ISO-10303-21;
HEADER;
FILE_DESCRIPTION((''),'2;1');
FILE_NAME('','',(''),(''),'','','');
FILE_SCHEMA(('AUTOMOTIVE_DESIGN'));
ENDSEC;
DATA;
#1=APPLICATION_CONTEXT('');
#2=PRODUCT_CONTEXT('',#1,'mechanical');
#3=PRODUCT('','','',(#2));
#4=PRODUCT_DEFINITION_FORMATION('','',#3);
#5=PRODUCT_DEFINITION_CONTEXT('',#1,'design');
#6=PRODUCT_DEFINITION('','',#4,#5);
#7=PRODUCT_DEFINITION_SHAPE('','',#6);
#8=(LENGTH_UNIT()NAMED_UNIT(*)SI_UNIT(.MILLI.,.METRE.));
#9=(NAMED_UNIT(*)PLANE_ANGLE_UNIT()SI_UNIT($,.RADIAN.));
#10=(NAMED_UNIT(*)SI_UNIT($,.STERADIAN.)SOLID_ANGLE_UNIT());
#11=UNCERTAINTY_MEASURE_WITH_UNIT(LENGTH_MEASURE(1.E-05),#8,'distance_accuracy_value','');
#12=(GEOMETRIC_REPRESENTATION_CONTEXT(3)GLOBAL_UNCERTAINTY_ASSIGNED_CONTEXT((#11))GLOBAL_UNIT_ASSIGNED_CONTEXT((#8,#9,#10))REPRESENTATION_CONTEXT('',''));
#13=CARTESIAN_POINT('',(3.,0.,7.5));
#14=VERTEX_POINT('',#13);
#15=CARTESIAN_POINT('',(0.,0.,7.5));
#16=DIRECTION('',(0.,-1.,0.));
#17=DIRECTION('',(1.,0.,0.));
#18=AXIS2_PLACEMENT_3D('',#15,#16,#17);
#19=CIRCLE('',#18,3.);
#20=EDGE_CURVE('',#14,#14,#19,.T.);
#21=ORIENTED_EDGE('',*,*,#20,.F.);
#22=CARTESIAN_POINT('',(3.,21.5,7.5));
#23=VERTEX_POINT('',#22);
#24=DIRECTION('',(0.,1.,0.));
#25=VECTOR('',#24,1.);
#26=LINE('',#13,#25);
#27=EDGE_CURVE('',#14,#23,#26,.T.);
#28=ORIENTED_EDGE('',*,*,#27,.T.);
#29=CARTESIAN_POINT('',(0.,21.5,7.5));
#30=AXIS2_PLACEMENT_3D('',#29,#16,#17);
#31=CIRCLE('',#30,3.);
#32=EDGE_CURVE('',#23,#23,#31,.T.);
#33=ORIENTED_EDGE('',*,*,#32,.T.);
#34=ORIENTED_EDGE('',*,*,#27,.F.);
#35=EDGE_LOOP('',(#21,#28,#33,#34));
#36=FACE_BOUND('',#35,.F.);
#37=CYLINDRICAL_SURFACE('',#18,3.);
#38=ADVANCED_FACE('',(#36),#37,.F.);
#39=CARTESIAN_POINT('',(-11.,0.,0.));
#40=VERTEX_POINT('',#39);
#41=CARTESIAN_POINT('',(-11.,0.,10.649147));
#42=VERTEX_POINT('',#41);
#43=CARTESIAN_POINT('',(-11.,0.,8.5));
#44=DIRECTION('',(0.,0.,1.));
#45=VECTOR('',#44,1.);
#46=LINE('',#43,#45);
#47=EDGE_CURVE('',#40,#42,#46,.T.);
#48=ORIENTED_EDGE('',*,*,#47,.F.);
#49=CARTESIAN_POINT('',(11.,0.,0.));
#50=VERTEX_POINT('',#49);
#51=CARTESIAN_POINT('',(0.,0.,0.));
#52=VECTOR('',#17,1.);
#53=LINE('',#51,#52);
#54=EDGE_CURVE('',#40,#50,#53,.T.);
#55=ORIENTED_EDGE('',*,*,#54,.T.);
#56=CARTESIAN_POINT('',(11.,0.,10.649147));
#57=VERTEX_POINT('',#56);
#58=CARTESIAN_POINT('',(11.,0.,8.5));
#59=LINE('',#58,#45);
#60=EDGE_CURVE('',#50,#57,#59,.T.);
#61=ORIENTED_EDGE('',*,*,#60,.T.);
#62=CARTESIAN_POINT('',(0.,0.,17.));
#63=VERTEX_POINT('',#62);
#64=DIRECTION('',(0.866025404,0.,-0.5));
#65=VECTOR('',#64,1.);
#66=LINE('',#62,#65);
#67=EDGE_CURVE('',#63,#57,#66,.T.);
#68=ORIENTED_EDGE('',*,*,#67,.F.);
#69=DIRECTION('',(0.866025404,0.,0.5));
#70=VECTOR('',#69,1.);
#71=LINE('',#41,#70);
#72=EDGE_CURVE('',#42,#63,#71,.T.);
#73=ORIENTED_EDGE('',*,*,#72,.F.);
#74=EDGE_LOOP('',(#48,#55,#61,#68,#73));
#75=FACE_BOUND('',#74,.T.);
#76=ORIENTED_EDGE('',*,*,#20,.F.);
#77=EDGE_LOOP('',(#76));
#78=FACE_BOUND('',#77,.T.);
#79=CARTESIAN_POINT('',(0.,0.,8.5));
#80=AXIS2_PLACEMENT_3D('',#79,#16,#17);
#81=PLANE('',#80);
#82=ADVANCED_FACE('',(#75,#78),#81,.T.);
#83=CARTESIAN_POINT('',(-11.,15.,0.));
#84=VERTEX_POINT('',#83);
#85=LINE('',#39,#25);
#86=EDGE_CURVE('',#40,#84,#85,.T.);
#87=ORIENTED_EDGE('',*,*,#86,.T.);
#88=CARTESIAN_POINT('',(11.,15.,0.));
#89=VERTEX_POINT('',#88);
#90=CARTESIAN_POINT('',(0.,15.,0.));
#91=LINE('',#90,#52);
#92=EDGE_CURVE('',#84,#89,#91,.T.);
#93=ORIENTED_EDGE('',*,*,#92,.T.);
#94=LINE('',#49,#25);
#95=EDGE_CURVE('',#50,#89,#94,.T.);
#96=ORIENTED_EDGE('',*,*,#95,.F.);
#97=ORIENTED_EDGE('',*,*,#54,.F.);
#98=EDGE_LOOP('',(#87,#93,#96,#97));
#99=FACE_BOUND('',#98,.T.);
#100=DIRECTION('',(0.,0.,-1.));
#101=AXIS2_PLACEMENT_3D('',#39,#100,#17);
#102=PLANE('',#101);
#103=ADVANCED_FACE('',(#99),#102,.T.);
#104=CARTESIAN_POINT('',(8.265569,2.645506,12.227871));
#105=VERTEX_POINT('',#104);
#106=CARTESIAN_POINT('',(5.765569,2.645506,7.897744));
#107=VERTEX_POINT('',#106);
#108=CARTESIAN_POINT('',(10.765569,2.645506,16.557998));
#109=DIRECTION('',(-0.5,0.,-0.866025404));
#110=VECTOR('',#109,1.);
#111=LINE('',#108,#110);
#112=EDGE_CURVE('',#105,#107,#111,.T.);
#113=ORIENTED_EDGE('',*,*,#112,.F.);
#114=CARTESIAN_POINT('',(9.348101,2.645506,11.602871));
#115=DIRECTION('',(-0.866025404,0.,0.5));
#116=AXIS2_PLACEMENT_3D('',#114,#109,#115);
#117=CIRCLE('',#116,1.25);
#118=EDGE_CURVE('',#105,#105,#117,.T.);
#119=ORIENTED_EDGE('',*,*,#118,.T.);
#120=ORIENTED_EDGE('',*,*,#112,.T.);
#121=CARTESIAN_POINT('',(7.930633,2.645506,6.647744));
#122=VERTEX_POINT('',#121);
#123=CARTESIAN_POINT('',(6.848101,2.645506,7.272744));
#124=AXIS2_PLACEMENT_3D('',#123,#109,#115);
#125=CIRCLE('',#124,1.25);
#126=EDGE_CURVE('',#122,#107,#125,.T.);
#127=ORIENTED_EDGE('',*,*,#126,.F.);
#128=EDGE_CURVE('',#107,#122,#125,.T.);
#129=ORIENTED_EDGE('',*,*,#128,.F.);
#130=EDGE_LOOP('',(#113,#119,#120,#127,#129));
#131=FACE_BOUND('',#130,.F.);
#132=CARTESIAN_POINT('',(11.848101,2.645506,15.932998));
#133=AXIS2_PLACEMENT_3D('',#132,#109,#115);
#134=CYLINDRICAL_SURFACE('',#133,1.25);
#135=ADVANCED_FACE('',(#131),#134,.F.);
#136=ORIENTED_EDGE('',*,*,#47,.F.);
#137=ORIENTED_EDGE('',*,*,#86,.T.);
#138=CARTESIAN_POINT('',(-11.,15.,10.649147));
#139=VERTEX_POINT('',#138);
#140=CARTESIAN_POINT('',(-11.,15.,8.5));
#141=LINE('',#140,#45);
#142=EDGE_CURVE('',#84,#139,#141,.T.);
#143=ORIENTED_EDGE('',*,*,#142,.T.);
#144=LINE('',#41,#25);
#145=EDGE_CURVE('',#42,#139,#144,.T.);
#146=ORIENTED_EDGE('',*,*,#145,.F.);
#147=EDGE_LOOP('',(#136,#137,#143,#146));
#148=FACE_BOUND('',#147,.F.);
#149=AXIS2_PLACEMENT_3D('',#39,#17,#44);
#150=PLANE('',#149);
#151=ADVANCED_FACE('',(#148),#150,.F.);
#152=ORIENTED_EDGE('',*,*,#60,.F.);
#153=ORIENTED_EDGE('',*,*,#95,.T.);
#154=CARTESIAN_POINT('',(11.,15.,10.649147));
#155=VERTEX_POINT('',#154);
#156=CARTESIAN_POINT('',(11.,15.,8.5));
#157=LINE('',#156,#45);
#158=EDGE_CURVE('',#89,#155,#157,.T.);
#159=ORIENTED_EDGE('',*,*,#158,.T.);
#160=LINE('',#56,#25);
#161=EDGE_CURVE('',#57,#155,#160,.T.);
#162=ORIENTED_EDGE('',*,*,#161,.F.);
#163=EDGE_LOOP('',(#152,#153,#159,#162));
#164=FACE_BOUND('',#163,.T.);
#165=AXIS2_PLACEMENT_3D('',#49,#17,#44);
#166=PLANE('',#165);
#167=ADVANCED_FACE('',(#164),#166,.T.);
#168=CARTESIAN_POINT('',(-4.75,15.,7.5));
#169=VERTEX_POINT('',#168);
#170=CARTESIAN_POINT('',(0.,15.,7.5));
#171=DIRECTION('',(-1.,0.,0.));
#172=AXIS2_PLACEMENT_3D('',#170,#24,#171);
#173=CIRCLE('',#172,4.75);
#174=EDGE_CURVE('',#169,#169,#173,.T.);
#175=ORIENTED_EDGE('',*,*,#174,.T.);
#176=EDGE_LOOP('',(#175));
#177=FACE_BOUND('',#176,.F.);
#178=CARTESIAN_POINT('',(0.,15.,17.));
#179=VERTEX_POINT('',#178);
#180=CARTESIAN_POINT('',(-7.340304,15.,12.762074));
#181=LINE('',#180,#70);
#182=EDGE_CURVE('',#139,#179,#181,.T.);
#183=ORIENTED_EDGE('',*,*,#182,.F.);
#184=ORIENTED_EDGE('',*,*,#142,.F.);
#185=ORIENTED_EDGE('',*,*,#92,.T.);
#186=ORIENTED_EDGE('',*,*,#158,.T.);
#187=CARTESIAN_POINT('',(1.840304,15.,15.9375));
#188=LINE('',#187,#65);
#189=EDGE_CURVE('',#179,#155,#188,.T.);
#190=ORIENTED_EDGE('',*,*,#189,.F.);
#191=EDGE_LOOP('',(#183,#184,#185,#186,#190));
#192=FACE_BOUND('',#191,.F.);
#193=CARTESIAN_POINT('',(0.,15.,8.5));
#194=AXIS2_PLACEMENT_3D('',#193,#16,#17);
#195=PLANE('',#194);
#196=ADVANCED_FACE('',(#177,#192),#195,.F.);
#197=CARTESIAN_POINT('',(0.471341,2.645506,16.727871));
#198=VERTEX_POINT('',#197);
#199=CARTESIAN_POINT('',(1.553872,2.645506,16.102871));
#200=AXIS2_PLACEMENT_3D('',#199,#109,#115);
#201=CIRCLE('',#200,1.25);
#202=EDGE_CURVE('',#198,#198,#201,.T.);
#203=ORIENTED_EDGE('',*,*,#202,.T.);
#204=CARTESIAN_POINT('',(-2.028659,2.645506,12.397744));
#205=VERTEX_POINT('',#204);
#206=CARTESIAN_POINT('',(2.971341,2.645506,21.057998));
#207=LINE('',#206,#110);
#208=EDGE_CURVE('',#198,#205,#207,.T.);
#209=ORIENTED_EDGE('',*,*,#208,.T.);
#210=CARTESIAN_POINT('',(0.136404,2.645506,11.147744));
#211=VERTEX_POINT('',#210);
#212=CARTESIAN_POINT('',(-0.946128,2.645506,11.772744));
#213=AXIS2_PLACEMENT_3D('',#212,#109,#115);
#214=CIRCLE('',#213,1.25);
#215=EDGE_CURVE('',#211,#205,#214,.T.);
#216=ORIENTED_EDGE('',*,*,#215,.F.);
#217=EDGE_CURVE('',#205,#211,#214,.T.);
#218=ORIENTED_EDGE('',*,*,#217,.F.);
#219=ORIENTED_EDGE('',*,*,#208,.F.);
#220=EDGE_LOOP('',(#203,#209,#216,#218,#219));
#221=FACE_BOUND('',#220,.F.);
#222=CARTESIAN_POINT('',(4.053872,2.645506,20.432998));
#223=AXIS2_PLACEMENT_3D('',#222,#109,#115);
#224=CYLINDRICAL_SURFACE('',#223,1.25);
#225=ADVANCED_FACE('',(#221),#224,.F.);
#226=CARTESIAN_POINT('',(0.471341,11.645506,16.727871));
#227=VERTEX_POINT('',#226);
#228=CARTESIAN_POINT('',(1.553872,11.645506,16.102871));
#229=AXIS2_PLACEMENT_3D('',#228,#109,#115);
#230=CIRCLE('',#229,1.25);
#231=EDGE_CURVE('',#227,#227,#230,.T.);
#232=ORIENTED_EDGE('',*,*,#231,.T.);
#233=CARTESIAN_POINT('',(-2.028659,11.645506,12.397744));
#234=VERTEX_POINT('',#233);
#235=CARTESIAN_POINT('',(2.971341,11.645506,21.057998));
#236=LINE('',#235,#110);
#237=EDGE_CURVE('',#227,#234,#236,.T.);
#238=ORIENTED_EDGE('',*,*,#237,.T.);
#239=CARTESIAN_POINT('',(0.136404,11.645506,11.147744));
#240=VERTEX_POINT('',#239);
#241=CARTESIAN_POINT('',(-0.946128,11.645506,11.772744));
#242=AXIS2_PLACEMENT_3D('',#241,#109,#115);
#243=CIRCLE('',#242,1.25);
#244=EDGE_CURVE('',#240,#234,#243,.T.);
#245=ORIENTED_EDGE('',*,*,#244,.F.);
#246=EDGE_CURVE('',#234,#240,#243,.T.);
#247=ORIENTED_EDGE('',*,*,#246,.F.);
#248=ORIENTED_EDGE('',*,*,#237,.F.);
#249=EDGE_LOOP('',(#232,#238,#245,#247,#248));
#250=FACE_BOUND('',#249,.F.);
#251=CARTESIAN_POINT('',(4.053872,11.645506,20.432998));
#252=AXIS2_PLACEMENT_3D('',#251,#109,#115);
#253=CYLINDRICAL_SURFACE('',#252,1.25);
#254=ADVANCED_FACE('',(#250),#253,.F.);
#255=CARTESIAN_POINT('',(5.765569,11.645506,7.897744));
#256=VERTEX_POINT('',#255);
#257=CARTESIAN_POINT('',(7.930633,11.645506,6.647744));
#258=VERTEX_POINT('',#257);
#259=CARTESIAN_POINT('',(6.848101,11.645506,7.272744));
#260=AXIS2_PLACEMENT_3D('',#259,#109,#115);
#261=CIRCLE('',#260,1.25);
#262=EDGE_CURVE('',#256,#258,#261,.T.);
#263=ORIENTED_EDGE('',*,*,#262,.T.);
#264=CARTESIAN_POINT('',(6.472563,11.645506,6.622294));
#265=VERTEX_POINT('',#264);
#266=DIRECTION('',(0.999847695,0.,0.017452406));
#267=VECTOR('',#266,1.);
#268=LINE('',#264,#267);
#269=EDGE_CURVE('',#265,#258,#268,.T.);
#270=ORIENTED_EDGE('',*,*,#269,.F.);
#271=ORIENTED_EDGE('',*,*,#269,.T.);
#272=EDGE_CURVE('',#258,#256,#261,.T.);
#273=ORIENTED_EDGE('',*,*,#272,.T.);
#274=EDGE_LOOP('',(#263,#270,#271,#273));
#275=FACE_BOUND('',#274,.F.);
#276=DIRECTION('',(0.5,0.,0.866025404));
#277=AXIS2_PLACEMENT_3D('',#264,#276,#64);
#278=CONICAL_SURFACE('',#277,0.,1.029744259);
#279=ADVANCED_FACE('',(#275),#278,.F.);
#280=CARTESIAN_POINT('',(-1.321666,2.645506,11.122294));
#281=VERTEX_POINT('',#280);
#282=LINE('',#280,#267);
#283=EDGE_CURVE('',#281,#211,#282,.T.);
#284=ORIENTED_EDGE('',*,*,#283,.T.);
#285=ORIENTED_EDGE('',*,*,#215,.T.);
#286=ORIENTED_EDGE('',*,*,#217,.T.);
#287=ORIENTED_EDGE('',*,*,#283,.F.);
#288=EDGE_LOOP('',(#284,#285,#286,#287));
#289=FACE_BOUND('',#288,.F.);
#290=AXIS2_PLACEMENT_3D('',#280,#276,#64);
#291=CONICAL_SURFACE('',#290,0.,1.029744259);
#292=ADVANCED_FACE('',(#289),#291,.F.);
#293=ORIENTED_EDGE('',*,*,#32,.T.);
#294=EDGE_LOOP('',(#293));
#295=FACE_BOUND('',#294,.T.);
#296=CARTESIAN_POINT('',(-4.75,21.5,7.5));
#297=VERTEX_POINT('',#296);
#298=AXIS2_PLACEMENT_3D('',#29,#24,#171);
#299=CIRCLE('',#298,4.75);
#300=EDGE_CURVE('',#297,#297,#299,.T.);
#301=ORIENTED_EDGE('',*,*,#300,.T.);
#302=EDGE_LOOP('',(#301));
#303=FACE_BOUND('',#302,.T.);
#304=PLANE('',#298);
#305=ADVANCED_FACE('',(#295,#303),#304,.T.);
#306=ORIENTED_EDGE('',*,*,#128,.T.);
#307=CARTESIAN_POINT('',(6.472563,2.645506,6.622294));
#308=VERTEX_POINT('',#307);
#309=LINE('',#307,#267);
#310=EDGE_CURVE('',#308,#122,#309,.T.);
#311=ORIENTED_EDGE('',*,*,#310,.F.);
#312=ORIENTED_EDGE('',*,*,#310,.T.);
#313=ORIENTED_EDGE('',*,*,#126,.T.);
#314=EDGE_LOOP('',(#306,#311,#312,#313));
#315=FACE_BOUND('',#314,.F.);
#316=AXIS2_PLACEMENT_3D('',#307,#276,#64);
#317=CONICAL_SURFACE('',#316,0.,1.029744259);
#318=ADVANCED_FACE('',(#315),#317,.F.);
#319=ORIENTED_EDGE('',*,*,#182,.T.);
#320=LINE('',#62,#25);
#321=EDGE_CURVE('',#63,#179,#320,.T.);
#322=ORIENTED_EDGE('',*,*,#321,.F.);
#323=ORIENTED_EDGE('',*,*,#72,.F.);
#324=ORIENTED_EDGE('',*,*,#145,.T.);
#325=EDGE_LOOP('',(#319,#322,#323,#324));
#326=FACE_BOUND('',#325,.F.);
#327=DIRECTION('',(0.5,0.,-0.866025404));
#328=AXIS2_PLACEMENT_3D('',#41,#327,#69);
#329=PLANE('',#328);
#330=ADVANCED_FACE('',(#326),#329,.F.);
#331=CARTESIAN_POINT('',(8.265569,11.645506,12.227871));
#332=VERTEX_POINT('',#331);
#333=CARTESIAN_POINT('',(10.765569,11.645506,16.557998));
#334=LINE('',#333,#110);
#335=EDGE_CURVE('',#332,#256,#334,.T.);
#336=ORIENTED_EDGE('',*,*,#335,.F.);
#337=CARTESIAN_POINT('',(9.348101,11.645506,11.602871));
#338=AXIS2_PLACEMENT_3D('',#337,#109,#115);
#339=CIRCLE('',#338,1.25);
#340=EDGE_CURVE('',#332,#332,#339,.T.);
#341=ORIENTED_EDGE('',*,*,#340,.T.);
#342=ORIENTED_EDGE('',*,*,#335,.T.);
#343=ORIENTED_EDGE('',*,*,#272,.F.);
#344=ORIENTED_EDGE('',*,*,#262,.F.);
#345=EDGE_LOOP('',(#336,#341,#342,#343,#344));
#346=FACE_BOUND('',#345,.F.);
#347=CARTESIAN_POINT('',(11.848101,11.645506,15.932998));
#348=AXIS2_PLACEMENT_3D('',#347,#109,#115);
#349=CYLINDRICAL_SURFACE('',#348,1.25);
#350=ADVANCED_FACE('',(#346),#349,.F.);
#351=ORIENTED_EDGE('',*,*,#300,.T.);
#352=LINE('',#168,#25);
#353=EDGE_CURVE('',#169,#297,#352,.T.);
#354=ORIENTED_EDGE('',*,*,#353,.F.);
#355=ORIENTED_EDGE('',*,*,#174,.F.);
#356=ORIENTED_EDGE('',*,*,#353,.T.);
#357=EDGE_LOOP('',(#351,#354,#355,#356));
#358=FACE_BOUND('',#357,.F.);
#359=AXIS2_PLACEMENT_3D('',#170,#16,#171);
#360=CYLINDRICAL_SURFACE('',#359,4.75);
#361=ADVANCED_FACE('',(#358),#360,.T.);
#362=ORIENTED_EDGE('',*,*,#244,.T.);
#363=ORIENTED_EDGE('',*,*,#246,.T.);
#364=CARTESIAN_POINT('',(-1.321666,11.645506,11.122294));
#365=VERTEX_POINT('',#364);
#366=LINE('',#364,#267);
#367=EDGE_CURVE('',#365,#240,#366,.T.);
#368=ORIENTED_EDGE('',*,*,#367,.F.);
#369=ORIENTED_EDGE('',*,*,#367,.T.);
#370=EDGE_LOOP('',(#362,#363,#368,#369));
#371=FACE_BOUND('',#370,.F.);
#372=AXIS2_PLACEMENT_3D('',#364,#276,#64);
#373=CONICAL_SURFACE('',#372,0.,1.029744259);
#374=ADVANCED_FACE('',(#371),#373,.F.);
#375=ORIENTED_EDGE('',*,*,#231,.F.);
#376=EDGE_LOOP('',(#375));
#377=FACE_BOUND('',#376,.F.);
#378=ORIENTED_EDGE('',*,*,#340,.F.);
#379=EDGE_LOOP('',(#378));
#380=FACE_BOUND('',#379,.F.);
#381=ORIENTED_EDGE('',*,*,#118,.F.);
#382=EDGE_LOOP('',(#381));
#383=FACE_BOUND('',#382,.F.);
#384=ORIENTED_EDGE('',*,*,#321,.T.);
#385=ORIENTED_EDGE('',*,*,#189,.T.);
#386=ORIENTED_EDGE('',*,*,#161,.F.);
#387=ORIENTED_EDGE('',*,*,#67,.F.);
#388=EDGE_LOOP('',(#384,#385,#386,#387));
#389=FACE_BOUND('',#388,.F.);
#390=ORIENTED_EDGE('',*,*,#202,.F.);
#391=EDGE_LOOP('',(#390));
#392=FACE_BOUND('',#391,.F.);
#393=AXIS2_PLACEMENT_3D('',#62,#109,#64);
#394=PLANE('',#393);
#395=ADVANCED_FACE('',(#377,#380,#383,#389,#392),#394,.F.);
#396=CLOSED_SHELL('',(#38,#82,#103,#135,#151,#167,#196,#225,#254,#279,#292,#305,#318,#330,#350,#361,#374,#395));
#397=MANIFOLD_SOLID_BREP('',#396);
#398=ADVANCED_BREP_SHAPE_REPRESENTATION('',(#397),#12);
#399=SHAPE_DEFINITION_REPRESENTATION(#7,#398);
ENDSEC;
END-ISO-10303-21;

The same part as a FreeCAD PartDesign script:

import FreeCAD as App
import Part
import Sketcher
from FreeCAD import Vector
Q = App.Units.Quantity

doc = App.newDocument("Part")
body = doc.addObject("PartDesign::Body", "Body")

# Sketch on XZ plane
sketch1 = body.newObject("Sketcher::SketchObject", "Sketch")
sketch1.AttachmentSupport = (doc.getObject("XZ_Plane"), [""])
sketch1.MapMode = "FlatFace"
sketch1.addGeometry([
    Part.LineSegment(Vector(-11, 17, 0), Vector(-11, 0, 0)),
    Part.LineSegment(Vector(-11, 0, 0), Vector(11, 0, 0)),
    Part.LineSegment(Vector(11, 0, 0), Vector(11, 17, 0)),
    Part.LineSegment(Vector(11, 17, 0), Vector(-11, 17, 0)),
], False)
sketch1.addConstraint([
    Sketcher.Constraint("Coincident", 0, 2, 1, 1),
    Sketcher.Constraint("Coincident", 1, 2, 2, 1),
    Sketcher.Constraint("Coincident", 2, 2, 3, 1),
    Sketcher.Constraint("Coincident", 3, 2, 0, 1),
    Sketcher.Constraint("Vertical", 0),
    Sketcher.Constraint("Horizontal", 1),
    Sketcher.Constraint("Vertical", 2),
    Sketcher.Constraint("Horizontal", 3),
    Sketcher.Constraint("Symmetric", 0, 2, 1, 2, -1, 1),
    Sketcher.Constraint("DistanceX", 1, 1, 1, 2, Q("22 mm")),
    Sketcher.Constraint("DistanceY", 0, 2, 0, 1, Q("17 mm")),
])
pad1 = body.newObject("PartDesign::Pad", "Pad")
pad1.Profile = sketch1
pad1.Length = 15
pad1.Reversed = True

# Sketch on XZ plane
sketch2 = body.newObject("Sketcher::SketchObject", "Sketch001")
sketch2.AttachmentSupport = (doc.getObject("XZ_Plane"), [""])
sketch2.MapMode = "FlatFace"
sketch2.AttachmentOffset = App.Placement(Vector(0, 0, -15), App.Rotation())
sketch2.addGeometry(Part.Circle(Vector(0, 7.5, 0), Vector(0, 0, 1), 4.8), False)
sketch2.addConstraint([
    Sketcher.Constraint("PointOnObject", 0, 3, -2),
    Sketcher.Constraint("Diameter", 0, Q("9.5 mm")),
    Sketcher.Constraint("DistanceY", -1, 1, 0, 3, Q("7.5 mm")),
])
pad2 = body.newObject("PartDesign::Pad", "Pad001")
pad2.Profile = sketch2
pad2.Length = 6.5
pad2.Reversed = True

# Sketch on XZ plane
sketch3 = body.newObject("Sketcher::SketchObject", "Sketch002")
sketch3.AttachmentSupport = (doc.getObject("XZ_Plane"), [""])
sketch3.MapMode = "FlatFace"
sketch3.addGeometry(Part.Circle(Vector(0, 7.5, 0), Vector(0, 0, 1), 3), False)
sketch3.addConstraint([
    Sketcher.Constraint("PointOnObject", 0, 3, -2),
    Sketcher.Constraint("Diameter", 0, Q("6 mm")),
    Sketcher.Constraint("DistanceY", -1, 1, 0, 3, Q("7.5 mm")),
])
pocket1 = body.newObject("PartDesign::Pocket", "Pocket")
pocket1.Profile = sketch3
pocket1.Type = "ThroughAll"

# Sketch on XZ plane
sketch4 = body.newObject("Sketcher::SketchObject", "Sketch003")
sketch4.AttachmentSupport = (doc.getObject("XZ_Plane"), [""])
sketch4.MapMode = "FlatFace"
sketch4.addGeometry([
    Part.LineSegment(Vector(11, 17, 0), Vector(0, 17, 0)),  # 0
    Part.LineSegment(Vector(0, 17, 0), Vector(11, 11, 0)),  # 1
    Part.LineSegment(Vector(11, 11, 0), Vector(11, 17, 0)),  # 2
    Part.LineSegment(Vector(-11, 11, 0), Vector(0, 17, 0)),  # 3
    Part.LineSegment(Vector(0, 17, 0), Vector(-11, 17, 0)),  # 4
    Part.LineSegment(Vector(-11, 17, 0), Vector(-11, 11, 0)),  # 5
], False)
sketch4.addConstraint([
    Sketcher.Constraint("Coincident", 0, 2, 1, 1),
    Sketcher.Constraint("Coincident", 1, 2, 2, 1),
    Sketcher.Constraint("Coincident", 2, 2, 0, 1),
    Sketcher.Constraint("Coincident", 3, 2, 4, 1),
    Sketcher.Constraint("Coincident", 4, 2, 5, 1),
    Sketcher.Constraint("Coincident", 5, 2, 3, 1),
    Sketcher.Constraint("Horizontal", 0),
    Sketcher.Constraint("Vertical", 2),
    Sketcher.Constraint("Horizontal", 4),
    Sketcher.Constraint("Vertical", 5),
    Sketcher.Constraint("Coincident", 3, 2, 0, 2),
    Sketcher.Constraint("Symmetric", 1, 2, 5, 2, -2),
    Sketcher.Constraint("PointOnObject", 0, 2, -2),
    Sketcher.Constraint("DistanceX", 0, 2, 0, 1, Q("11 mm")),
    Sketcher.Constraint("Angle", 1, Q("-30 deg")),
    Sketcher.Constraint("DistanceY", -1, 1, 0, 2, Q("17 mm")),
])
pocket2 = body.newObject("PartDesign::Pocket", "Pocket001")
pocket2.Profile = sketch4
pocket2.Type = "ThroughAll"

# Sketch on an angled plane
sketch5 = body.newObject("Sketcher::SketchObject", "Sketch004")
sketch5.Placement = App.Placement(Vector(7.361216, 0, 12.75), App.Rotation(Vector(0.866025404, 0, -0.5), Vector(0, 1, 0), Vector(0.5, 0, 0.866025404), "ZXY"))
sketch5.addGeometry([
    Part.Circle(Vector(-6.7, 2.6, 0), Vector(0, 0, 1), 1.2),
    Part.Circle(Vector(-6.7, 11.6, 0), Vector(0, 0, 1), 1.2),
    Part.Circle(Vector(2.3, 11.6, 0), Vector(0, 0, 1), 1.2),
    Part.Circle(Vector(2.3, 2.6, 0), Vector(0, 0, 1), 1.2),
], False)
sketch5.addConstraint([
    Sketcher.Constraint("Equal", 0, 1),
    Sketcher.Constraint("Equal", 1, 2),
    Sketcher.Constraint("Equal", 2, 3),
    Sketcher.Constraint("Horizontal", 1, 3, 2, 3),
    Sketcher.Constraint("Horizontal", 0, 3, 3, 3),
    Sketcher.Constraint("Vertical", 0, 3, 1, 3),
    Sketcher.Constraint("Vertical", 2, 3, 3, 3),
    Sketcher.Constraint("Diameter", 0, Q("2.5 mm")),
    Sketcher.Constraint("DistanceY", 0, 3, 1, 3, Q("9 mm")),
    Sketcher.Constraint("DistanceX", 1, 3, 2, 3, Q("9 mm")),
    Sketcher.Constraint("DistanceX", 0, 3, -1, 1, Q("6.705743 mm")),
    Sketcher.Constraint("DistanceY", -1, 1, 0, 3, Q("2.645506 mm")),
])
doc.recompute()
hole = body.newObject("PartDesign::Hole", "Hole")
hole.Profile = sketch5
hole.ThreadType = "None"
hole.Diameter = 2.5
hole.DepthType = "Dimension"
hole.Depth = 5
hole.DrillPoint = "Angled"
hole.DrillPointAngle = 118

doc.recompute()
